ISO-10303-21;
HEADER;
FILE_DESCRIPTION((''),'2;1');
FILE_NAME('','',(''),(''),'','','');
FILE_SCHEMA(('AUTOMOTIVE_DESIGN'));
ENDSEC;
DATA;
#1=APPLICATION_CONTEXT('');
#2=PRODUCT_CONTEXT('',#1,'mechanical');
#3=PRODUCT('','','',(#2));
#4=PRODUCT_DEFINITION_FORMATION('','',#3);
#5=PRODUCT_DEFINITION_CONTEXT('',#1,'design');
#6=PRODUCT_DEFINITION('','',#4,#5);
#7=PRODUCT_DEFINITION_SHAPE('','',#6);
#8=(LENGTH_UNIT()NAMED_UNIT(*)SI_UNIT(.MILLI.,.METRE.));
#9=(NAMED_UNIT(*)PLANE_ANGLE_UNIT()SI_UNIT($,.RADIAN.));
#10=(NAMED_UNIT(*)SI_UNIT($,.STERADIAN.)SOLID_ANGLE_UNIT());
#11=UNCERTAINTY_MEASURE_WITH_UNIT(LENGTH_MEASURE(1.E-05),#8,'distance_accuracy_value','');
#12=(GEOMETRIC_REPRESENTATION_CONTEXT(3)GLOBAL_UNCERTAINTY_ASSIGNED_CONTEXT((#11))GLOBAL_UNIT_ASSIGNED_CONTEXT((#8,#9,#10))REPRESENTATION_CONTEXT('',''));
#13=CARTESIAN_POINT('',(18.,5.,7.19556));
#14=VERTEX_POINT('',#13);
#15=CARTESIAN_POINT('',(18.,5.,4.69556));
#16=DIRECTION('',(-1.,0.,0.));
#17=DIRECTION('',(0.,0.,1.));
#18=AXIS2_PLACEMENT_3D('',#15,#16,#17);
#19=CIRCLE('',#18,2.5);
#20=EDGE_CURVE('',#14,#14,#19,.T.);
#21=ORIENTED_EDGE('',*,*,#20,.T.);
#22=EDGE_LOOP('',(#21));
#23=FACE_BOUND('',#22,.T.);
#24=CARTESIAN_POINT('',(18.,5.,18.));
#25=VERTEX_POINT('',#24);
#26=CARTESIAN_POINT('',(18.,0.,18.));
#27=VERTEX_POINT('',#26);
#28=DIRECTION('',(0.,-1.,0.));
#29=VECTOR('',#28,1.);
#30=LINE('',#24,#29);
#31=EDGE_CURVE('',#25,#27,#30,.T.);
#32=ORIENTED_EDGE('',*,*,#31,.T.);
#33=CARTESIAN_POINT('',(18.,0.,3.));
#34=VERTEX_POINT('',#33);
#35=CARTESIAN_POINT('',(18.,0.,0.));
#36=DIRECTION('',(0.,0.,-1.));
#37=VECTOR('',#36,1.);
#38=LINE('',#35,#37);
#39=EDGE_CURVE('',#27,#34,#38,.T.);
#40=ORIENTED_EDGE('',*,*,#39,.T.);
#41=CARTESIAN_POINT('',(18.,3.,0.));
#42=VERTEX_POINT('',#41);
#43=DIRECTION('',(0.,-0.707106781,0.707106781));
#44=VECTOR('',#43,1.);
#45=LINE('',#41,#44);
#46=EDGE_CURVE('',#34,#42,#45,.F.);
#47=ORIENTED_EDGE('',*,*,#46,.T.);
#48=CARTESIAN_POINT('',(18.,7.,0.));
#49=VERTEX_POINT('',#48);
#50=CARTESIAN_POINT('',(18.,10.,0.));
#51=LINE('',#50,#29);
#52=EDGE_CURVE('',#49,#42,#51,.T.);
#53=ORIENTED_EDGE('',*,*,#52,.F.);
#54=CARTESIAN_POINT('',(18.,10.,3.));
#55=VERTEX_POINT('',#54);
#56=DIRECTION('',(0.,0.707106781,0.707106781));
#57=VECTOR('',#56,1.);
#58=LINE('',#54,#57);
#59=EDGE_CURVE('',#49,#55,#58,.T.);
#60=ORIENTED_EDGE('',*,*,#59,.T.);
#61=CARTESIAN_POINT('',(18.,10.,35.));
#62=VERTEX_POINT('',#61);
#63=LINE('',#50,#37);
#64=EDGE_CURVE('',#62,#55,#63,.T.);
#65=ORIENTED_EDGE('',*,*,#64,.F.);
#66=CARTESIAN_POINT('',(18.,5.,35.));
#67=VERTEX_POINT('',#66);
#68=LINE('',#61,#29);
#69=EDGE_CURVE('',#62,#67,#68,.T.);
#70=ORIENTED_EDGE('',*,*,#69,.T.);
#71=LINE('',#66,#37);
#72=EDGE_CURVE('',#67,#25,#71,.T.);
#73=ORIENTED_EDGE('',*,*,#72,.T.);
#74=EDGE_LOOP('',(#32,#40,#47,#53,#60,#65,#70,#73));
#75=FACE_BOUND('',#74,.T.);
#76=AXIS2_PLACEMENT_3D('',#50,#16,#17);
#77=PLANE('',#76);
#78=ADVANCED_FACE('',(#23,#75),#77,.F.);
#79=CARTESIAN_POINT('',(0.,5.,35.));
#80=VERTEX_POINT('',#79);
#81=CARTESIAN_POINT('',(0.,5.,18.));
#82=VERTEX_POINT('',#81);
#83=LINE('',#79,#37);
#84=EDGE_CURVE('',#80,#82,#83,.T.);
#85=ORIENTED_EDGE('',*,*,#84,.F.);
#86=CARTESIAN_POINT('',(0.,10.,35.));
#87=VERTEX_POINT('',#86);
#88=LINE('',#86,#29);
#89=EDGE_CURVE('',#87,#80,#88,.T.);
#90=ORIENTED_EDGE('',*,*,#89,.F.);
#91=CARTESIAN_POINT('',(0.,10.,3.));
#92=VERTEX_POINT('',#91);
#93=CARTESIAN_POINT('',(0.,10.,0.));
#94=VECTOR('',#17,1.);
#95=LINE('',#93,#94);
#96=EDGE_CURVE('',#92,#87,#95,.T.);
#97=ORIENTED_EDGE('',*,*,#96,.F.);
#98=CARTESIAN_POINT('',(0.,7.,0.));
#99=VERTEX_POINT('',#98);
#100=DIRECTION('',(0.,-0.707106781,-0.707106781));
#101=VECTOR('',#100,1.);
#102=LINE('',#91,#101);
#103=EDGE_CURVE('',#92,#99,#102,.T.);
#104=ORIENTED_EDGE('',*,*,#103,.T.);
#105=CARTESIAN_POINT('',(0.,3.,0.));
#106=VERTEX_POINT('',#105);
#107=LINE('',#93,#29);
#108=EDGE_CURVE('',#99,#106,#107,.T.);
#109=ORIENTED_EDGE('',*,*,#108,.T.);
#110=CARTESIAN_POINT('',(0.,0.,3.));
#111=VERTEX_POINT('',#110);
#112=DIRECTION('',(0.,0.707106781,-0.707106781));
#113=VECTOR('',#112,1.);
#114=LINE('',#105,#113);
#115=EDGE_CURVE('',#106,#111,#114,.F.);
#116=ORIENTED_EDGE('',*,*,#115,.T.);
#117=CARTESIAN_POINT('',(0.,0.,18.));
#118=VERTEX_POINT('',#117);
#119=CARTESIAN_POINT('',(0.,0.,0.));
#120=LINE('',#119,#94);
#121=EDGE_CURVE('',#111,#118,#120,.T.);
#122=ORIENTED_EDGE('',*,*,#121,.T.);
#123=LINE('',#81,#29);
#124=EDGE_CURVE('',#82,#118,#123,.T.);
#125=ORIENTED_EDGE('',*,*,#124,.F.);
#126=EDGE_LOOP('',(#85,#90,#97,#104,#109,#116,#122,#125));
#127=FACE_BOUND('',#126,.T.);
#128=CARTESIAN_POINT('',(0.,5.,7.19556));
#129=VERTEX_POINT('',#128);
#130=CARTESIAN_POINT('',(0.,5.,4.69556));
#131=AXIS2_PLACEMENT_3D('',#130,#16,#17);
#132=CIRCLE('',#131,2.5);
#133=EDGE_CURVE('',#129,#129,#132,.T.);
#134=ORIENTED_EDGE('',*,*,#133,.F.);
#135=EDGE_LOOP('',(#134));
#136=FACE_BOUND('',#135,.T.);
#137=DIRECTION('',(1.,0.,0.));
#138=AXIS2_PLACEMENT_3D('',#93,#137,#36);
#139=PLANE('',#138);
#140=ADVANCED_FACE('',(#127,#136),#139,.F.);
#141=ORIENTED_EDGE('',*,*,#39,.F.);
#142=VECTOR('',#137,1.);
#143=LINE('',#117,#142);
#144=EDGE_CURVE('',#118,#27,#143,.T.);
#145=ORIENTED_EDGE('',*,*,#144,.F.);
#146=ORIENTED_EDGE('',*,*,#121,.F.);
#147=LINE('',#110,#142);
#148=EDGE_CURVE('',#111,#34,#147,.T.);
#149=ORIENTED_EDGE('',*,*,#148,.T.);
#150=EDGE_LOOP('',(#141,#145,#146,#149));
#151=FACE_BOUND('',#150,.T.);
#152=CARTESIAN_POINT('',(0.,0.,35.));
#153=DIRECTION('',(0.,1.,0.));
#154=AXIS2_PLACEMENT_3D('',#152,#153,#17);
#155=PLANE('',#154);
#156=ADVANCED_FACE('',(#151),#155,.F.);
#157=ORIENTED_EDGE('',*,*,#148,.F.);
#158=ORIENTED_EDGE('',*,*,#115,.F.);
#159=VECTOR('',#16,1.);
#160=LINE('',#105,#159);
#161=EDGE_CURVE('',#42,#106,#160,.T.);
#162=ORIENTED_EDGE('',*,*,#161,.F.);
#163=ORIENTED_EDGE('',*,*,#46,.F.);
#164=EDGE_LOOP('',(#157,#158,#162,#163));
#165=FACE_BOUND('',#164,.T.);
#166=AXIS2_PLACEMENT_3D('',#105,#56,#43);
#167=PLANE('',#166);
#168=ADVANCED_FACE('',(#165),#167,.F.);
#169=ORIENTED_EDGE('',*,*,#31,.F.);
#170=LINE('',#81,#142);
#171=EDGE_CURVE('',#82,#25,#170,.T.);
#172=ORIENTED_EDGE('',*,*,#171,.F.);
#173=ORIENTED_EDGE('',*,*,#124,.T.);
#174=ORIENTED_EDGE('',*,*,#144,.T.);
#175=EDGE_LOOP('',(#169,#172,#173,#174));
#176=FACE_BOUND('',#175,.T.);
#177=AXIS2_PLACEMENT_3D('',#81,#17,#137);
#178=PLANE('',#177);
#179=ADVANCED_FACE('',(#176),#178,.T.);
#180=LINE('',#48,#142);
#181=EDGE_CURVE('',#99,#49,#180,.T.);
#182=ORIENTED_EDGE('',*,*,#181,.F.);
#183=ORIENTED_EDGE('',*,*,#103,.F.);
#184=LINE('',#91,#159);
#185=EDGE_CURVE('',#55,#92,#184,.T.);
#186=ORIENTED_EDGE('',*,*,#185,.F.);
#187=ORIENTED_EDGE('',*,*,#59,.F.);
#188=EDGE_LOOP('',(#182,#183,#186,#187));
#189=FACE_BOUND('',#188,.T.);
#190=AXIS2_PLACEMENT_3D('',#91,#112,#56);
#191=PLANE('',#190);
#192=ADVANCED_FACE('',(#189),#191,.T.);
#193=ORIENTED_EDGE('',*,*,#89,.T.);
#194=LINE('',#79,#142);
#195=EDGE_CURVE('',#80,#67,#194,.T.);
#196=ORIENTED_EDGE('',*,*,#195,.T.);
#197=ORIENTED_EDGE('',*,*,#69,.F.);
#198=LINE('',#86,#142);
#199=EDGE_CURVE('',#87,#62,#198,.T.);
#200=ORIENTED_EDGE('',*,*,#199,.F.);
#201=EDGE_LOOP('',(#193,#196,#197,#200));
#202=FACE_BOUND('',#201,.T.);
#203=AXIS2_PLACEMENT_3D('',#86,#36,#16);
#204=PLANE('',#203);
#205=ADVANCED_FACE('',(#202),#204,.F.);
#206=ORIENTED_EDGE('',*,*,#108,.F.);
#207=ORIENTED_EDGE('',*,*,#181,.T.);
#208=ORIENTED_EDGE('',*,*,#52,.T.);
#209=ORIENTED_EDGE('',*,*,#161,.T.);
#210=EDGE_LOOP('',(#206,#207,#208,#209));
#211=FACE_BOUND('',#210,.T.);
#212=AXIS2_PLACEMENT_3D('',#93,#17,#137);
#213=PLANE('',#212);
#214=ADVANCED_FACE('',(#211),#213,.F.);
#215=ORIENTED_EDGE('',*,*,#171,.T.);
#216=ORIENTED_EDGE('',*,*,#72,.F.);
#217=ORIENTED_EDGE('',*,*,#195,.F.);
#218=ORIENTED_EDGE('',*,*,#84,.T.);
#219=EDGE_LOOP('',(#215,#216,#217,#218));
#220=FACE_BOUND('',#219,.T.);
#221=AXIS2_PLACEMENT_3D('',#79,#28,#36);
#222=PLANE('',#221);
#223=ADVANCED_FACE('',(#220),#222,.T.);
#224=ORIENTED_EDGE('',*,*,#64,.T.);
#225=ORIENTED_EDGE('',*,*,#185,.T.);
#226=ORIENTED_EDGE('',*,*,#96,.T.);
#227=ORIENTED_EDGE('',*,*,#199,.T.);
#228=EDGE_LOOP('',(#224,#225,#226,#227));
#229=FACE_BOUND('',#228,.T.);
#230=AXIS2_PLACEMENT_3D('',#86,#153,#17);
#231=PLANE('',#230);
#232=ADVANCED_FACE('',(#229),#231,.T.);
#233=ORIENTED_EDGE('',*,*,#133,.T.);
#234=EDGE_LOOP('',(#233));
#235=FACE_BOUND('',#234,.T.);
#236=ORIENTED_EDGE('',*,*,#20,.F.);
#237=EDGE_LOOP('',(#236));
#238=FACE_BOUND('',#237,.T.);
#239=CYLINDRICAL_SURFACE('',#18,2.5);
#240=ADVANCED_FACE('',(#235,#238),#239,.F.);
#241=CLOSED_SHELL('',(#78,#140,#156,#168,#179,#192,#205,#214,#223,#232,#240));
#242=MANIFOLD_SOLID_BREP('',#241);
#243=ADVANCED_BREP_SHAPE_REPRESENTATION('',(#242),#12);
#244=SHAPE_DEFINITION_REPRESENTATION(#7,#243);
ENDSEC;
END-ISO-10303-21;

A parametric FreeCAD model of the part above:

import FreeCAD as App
import Part
import Sketcher
from FreeCAD import Vector


def edges_at(feature, points):
    """Names of the edges that pass closest to the given points."""
    edges = feature.Shape.Edges
    near = lambda p: min(range(len(edges)), key=lambda i: edges[i].distToShape(Part.Vertex(*p))[0])
    return sorted({f"Edge{near(p) + 1}" for p in points})


def add_polygon(sketch, points):
    """Adds a closed chain of lines whose ends are joined by coincident constraints."""
    first, n = sketch.GeometryCount, len(points)
    for a, b in zip(points, points[1:] + points[:1]):
        sketch.addGeometry(Part.LineSegment(App.Vector(*a, 0), App.Vector(*b, 0)), False)
    for i in range(n):
        sketch.addConstraint(Sketcher.Constraint("Coincident", first + i, 2, first + (i + 1) % n, 1))

doc = App.newDocument("Part")
body = doc.addObject("PartDesign::Body", "Body")

# Sketch on XZ plane
sketch1 = body.newObject("Sketcher::SketchObject", "Sketch")
sketch1.AttachmentSupport = (doc.getObject("XZ_Plane"), [""])
sketch1.MapMode = "FlatFace"
add_polygon(sketch1, [(0, 0), (0, 35), (18, 35), (18, 0)])  # lines 0-3
sketch1.addConstraint([
    Sketcher.Constraint("Vertical", 0),
    Sketcher.Constraint("Horizontal", 1),
    Sketcher.Constraint("Vertical", 2),
    Sketcher.Constraint("Horizontal", 3),
    Sketcher.Constraint("Coincident", 3, 2, -1, 1),
    Sketcher.Constraint("DistanceX", 1, 1, 1, 2, 18.0),
    Sketcher.Constraint("DistanceY", 0, 1, 0, 2, 35.0),
])
pad1 = body.newObject("PartDesign::Pad", "Pad")
pad1.Profile = sketch1
pad1.Length = 10
pad1.Reversed = True

# Sketch on YZ plane
sketch2 = body.newObject("Sketcher::SketchObject", "Sketch001")
sketch2.AttachmentSupport = (doc.getObject("YZ_Plane"), [""])
sketch2.MapMode = "FlatFace"
sketch2.AttachmentOffset = App.Placement(Vector(0, 0, 18), App.Rotation())
add_polygon(sketch2, [(5, 35), (0, 35), (0, 18), (5, 18)])  # lines 0-3
sketch2.addConstraint([
    Sketcher.Constraint("Horizontal", 0),
    Sketcher.Constraint("Vertical", 1),
    Sketcher.Constraint("Horizontal", 2),
    Sketcher.Constraint("Vertical", 3),
    Sketcher.Constraint("PointOnObject", 0, 2, -2),
    Sketcher.Constraint("DistanceX", 0, 2, 0, 1, 5.0),
    Sketcher.Constraint("DistanceY", 1, 2, 1, 1, 17.0),
    Sketcher.Constraint("DistanceY", -1, 1, 0, 2, 35.0),
])
pocket1 = body.newObject("PartDesign::Pocket", "Pocket")
pocket1.Profile = sketch2
pocket1.Type = "ThroughAll"

# Sketch on YZ plane
sketch3 = body.newObject("Sketcher::SketchObject", "Sketch002")
sketch3.AttachmentSupport = (doc.getObject("YZ_Plane"), [""])
sketch3.MapMode = "FlatFace"
sketch3.addGeometry(Part.Circle(Vector(5, 4.69556, 0), Vector(0, 0, 1), 2.5), False)
sketch3.addConstraint([
    Sketcher.Constraint("Diameter", 0, 5.0),
    Sketcher.Constraint("DistanceX", -1, 1, 0, 3, 5.0),
    Sketcher.Constraint("DistanceY", -1, 1, 0, 3, 4.69556),
])
pocket2 = body.newObject("PartDesign::Pocket", "Pocket001")
pocket2.Profile = sketch3
pocket2.Type = "ThroughAll"
pocket2.Reversed = True
doc.recompute()

chamfer = body.newObject("PartDesign::Chamfer", "Chamfer")
chamfer.Base = (pocket2, edges_at(pocket2, [(9, 10, 0), (9, 0, 0)]))
chamfer.Size = 3

doc.recompute()
